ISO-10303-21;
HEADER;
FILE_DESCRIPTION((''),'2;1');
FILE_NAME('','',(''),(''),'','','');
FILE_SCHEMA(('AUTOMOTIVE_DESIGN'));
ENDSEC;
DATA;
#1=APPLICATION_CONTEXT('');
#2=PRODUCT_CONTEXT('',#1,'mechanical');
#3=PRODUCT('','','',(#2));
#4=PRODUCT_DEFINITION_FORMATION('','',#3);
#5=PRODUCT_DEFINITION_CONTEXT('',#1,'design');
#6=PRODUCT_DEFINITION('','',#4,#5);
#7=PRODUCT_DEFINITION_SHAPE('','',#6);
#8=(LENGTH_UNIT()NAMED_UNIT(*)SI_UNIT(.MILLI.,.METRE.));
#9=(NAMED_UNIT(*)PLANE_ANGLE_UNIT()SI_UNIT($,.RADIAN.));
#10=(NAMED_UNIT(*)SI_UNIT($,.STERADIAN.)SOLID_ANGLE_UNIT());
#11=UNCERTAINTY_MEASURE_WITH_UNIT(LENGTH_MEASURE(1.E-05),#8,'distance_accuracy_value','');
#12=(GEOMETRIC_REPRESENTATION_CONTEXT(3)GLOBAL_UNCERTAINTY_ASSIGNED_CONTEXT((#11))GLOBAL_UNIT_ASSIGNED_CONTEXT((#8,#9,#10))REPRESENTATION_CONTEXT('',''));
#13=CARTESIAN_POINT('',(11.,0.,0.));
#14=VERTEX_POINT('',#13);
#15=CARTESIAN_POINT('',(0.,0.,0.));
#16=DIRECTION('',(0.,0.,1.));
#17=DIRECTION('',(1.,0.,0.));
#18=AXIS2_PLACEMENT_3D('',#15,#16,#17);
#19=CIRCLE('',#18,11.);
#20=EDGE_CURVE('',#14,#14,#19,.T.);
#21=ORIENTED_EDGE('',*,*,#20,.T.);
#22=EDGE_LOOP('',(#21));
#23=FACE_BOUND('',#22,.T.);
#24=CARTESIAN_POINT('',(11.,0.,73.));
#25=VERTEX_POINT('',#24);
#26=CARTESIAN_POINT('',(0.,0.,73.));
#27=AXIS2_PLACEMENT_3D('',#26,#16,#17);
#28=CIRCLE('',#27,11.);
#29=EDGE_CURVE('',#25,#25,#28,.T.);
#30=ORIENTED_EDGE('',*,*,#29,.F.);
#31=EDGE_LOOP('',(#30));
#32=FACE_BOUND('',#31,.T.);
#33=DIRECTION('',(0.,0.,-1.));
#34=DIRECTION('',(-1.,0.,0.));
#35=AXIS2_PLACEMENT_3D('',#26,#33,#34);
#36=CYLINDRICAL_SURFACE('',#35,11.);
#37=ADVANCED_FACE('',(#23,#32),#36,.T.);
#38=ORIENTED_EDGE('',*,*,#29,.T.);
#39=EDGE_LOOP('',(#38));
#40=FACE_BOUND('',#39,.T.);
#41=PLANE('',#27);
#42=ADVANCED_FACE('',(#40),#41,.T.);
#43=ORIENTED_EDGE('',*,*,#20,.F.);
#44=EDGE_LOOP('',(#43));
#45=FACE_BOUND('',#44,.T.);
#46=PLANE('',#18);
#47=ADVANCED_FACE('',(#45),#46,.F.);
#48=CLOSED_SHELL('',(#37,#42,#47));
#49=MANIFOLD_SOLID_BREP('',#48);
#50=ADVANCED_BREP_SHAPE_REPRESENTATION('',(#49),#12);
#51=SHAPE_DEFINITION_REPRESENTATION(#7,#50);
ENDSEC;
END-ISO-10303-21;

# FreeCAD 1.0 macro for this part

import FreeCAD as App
import Part
import Sketcher

doc = App.newDocument("Part")
body = doc.addObject("PartDesign::Body", "Body")

# Sketch on XY plane
sketch1 = doc.addObject("Sketcher::SketchObject", "Sketch")
body.addObject(sketch1)
sketch1.AttachmentSupport = (doc.XY_Plane, [""])
sketch1.MapMode = "FlatFace"
sketch1.addGeometry(Part.Circle(App.Vector(0, 0, 0), App.Vector(0, 0, 1), 11), False)
sketch1.addConstraint([
    Sketcher.Constraint("Coincident", 0, 3, -1, 1),
    Sketcher.Constraint("Diameter", 0, 22.0),
])
pad1 = doc.addObject("PartDesign::Pad", "Pad")
body.addObject(pad1)
pad1.Profile = sketch1
pad1.Length = 73

doc.recompute()
